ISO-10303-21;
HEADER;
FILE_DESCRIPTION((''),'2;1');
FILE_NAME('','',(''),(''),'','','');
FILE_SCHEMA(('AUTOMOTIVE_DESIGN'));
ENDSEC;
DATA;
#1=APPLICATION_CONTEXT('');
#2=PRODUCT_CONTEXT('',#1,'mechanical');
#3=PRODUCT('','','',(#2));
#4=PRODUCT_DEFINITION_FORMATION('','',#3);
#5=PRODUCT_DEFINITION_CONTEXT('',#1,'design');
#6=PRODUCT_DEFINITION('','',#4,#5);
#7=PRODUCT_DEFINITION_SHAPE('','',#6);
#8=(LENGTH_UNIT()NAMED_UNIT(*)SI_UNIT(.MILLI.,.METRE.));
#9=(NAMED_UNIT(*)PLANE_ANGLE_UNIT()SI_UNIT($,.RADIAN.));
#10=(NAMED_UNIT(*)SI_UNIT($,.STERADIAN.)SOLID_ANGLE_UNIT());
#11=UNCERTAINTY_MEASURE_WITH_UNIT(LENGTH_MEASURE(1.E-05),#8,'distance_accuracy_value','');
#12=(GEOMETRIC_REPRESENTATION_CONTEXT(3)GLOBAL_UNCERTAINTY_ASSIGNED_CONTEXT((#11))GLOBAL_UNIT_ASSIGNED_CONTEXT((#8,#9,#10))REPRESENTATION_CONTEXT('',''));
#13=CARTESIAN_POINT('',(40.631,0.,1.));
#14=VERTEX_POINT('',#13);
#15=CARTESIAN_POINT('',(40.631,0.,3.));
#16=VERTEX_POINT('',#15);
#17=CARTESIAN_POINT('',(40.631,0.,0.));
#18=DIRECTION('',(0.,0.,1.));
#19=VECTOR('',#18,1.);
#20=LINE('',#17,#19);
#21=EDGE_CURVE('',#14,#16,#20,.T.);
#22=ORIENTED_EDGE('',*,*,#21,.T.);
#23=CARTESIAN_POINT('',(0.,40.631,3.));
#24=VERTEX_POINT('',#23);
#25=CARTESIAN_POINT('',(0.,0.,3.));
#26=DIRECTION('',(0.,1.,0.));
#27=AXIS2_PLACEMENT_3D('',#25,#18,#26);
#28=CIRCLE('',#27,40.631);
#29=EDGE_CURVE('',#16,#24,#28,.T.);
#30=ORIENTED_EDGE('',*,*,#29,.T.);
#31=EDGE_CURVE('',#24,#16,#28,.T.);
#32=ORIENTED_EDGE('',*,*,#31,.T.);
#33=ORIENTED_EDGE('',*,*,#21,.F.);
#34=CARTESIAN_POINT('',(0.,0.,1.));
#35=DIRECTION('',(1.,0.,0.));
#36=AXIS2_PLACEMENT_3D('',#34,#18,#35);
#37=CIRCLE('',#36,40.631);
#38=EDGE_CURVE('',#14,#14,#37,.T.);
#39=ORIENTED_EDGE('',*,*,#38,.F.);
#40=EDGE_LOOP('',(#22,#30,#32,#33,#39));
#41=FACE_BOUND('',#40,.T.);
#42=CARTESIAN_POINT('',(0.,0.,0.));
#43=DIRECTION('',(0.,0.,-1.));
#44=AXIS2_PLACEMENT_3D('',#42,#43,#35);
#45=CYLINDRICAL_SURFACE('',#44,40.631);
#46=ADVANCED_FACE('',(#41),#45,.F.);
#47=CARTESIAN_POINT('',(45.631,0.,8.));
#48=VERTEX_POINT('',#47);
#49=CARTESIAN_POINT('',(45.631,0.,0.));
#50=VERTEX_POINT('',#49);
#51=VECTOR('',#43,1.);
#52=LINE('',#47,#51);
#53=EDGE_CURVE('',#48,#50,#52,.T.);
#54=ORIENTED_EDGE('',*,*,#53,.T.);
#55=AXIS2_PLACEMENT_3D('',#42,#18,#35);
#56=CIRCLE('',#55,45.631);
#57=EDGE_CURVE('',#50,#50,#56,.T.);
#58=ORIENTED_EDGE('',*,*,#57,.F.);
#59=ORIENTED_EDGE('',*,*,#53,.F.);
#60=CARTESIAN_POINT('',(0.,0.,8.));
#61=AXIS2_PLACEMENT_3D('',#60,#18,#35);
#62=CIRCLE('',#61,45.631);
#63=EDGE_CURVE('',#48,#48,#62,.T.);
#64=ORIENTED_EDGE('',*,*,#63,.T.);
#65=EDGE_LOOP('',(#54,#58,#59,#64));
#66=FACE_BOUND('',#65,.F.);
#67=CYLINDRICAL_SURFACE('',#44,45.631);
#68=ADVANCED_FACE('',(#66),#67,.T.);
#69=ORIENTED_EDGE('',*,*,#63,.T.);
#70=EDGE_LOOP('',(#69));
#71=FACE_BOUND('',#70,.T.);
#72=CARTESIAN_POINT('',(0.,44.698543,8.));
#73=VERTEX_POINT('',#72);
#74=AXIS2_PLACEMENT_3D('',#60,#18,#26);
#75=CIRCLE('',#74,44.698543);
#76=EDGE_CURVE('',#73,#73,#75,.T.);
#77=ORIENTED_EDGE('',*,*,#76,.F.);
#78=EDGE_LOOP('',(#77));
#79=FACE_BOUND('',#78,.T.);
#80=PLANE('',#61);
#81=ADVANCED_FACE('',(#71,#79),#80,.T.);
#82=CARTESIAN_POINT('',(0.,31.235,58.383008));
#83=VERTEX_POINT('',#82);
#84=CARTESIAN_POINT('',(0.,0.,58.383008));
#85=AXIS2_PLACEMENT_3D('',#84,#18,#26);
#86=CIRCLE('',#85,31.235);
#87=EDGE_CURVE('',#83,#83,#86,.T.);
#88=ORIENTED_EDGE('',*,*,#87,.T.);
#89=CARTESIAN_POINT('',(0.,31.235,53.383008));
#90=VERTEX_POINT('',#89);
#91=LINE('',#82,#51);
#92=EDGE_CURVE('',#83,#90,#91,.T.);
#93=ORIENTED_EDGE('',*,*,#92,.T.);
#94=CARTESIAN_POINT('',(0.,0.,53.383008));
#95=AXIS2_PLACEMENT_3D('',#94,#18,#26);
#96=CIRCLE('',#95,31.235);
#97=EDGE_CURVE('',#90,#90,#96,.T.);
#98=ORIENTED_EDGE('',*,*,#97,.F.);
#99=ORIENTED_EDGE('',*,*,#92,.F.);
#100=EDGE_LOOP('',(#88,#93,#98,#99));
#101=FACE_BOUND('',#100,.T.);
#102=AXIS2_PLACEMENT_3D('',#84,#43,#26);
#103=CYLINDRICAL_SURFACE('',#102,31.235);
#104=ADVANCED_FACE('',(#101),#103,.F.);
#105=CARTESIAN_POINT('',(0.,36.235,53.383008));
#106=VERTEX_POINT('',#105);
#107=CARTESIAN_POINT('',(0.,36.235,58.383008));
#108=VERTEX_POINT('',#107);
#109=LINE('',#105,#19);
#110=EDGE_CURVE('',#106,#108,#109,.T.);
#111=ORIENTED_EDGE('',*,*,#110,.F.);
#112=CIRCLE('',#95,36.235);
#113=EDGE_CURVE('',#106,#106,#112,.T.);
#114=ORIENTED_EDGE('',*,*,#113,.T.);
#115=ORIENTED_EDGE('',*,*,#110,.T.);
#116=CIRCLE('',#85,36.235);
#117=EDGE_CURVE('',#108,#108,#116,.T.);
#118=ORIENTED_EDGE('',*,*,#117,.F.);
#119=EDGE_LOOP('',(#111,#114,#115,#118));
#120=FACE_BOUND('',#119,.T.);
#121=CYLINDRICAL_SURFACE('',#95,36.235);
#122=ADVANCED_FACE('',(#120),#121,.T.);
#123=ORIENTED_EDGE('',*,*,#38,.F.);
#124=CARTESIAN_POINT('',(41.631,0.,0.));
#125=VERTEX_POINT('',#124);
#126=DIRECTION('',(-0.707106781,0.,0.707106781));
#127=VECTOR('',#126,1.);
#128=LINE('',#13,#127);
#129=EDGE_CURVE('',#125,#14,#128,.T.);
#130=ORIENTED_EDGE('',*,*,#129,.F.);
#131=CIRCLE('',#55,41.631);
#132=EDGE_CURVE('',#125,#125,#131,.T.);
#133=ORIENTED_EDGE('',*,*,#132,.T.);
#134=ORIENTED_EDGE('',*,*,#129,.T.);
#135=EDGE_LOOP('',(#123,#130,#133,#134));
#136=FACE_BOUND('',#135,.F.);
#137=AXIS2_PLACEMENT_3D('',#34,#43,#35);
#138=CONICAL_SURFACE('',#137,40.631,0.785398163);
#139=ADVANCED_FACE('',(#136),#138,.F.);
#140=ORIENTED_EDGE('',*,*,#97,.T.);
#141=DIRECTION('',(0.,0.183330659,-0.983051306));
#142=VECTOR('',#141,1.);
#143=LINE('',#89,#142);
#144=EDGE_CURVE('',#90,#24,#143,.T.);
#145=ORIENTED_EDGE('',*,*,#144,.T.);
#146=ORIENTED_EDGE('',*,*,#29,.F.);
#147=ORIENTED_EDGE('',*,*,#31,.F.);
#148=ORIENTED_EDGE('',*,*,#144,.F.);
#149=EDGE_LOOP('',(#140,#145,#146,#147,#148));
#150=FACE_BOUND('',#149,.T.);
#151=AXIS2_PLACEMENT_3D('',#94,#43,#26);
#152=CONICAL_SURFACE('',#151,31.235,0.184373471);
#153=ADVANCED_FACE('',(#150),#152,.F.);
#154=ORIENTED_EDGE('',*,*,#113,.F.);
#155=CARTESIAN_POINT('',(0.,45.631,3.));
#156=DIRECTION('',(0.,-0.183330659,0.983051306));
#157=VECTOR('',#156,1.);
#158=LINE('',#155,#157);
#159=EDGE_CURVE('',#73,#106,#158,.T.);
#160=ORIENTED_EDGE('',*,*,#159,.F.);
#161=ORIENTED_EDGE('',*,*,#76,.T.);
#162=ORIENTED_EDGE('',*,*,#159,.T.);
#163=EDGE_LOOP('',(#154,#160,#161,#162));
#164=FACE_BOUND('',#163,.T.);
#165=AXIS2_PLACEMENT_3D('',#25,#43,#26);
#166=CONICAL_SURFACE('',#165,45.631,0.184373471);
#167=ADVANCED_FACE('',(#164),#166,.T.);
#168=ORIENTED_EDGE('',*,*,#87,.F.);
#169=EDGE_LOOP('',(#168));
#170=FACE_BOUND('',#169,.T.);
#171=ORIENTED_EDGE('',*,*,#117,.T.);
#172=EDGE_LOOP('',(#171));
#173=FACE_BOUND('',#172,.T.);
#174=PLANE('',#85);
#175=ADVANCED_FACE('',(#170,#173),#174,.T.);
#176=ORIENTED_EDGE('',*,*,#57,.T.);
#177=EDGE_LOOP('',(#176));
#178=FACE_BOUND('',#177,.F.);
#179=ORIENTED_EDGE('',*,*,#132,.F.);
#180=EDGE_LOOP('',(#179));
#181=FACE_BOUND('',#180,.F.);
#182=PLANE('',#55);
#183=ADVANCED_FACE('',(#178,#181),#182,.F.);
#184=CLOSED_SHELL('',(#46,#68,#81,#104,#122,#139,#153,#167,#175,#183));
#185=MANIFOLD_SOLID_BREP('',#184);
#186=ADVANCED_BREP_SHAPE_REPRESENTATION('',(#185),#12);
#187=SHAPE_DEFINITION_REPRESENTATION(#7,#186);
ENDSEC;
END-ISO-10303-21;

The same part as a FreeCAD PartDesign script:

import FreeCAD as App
import Part
import Sketcher
from FreeCAD import Vector
Q = App.Units.Quantity


def edges_at(feature, points):
    """Names of the edges that pass closest to the given points."""
    edges = feature.Shape.Edges
    near = lambda p: min(range(len(edges)), key=lambda i: edges[i].distToShape(Part.Vertex(*p))[0])
    return sorted({f"Edge{near(p) + 1}" for p in points})

doc = App.newDocument("Part")
params = doc.addObject("Spreadsheet::Sheet", "Params")
for row, (alias, value) in enumerate([
    ("pad1_length", "8 mm"),
    ("sketch2_width", "5 mm"),
    ("revolution_angle", "360 deg"),
    ("chamfer_size", "1 mm"),
], start=1):
    params.set(f"A{row}", alias)
    params.set(f"B{row}", "=" + value)
    params.setAlias(f"B{row}", alias)

body = doc.addObject("PartDesign::Body", "Body")

# Sketch on XY plane
sketch1 = body.newObject("Sketcher::SketchObject", "Sketch")
sketch1.AttachmentSupport = (doc.getObject("XY_Plane"), [""])
sketch1.MapMode = "FlatFace"
sketch1.addGeometry([
    Part.Circle(Vector(0, 0, 0), Vector(0, 0, 1), 45.631),
    Part.Circle(Vector(0, 0, 0), Vector(0, 0, 1), 40.631),
], False)
sketch1.addConstraint([
    Sketcher.Constraint("Coincident", 0, 3, -1, 1),
    Sketcher.Constraint("Coincident", 1, 3, -1, 1),
    Sketcher.Constraint("Diameter", 0, Q("91.262 mm")),
    Sketcher.Constraint("Diameter", 1, Q("81.262 mm")),
])
pad1 = body.newObject("PartDesign::Pad", "Pad")
pad1.Profile = sketch1
pad1.setExpression("Length", "Params.pad1_length")

# Sketch on YZ plane
sketch2 = body.newObject("Sketcher::SketchObject", "Sketch001")
sketch2.AttachmentSupport = (doc.getObject("YZ_Plane"), [""])
sketch2.MapMode = "FlatFace"
sketch2.addGeometry([
    Part.LineSegment(Vector(40.631, 3, 0), Vector(45.631, 3, 0)),  # 0
    Part.LineSegment(Vector(45.631, 3, 0), Vector(36.235, 53.383008, 0)),  # 1
    Part.LineSegment(Vector(36.235, 53.383008, 0), Vector(36.235, 58.383008, 0)),  # 2
    Part.LineSegment(Vector(36.235, 58.383008, 0), Vector(31.235, 58.383008, 0)),  # 3
    Part.LineSegment(Vector(31.235, 58.383008, 0), Vector(31.235, 53.383008, 0)),  # 4
    Part.LineSegment(Vector(31.235, 53.383008, 0), Vector(40.631, 3, 0)),  # 5
], False)
sketch2.addConstraint([
    Sketcher.Constraint("Coincident", 0, 2, 1, 1),
    Sketcher.Constraint("Coincident", 1, 2, 2, 1),
    Sketcher.Constraint("Coincident", 2, 2, 3, 1),
    Sketcher.Constraint("Coincident", 3, 2, 4, 1),
    Sketcher.Constraint("Coincident", 4, 2, 5, 1),
    Sketcher.Constraint("Coincident", 5, 2, 0, 1),
    Sketcher.Constraint("Horizontal", 0),
    Sketcher.Constraint("Vertical", 2),
    Sketcher.Constraint("Horizontal", 3),
    Sketcher.Constraint("Vertical", 4),
    Sketcher.Constraint("Parallel", 1, 5),
    Sketcher.Constraint("Horizontal", 1, 2, 4, 2),
    Sketcher.Constraint("Equal", 3, 2),
    Sketcher.Constraint("DistanceX", 0, 1, 0, 2, Q("5 mm")),
    Sketcher.Constraint("DistanceY", -1, 1, 0, 2, Q("3 mm")),
    Sketcher.Constraint("DistanceX", -1, 1, 0, 2, Q("45.631 mm")),
    Sketcher.Constraint("DistanceX", -1, 1, 1, 2, Q("36.235 mm")),
    Sketcher.Constraint("Distance", 1, Q("51.251657 mm")),
])
sketch2.setExpression("Constraints[13]", "Params.sketch2_width")
revolution = body.newObject("PartDesign::Revolution", "Revolution")
revolution.Profile = sketch2
revolution.ReferenceAxis = (sketch2, ["V_Axis"])
revolution.setExpression("Angle", "Params.revolution_angle")
doc.recompute()

chamfer = body.newObject("PartDesign::Chamfer", "Chamfer")
chamfer.Base = (revolution, edges_at(revolution, [(-40.631, 0, 0)]))
chamfer.setExpression("Size", "Params.chamfer_size")

doc.recompute()
